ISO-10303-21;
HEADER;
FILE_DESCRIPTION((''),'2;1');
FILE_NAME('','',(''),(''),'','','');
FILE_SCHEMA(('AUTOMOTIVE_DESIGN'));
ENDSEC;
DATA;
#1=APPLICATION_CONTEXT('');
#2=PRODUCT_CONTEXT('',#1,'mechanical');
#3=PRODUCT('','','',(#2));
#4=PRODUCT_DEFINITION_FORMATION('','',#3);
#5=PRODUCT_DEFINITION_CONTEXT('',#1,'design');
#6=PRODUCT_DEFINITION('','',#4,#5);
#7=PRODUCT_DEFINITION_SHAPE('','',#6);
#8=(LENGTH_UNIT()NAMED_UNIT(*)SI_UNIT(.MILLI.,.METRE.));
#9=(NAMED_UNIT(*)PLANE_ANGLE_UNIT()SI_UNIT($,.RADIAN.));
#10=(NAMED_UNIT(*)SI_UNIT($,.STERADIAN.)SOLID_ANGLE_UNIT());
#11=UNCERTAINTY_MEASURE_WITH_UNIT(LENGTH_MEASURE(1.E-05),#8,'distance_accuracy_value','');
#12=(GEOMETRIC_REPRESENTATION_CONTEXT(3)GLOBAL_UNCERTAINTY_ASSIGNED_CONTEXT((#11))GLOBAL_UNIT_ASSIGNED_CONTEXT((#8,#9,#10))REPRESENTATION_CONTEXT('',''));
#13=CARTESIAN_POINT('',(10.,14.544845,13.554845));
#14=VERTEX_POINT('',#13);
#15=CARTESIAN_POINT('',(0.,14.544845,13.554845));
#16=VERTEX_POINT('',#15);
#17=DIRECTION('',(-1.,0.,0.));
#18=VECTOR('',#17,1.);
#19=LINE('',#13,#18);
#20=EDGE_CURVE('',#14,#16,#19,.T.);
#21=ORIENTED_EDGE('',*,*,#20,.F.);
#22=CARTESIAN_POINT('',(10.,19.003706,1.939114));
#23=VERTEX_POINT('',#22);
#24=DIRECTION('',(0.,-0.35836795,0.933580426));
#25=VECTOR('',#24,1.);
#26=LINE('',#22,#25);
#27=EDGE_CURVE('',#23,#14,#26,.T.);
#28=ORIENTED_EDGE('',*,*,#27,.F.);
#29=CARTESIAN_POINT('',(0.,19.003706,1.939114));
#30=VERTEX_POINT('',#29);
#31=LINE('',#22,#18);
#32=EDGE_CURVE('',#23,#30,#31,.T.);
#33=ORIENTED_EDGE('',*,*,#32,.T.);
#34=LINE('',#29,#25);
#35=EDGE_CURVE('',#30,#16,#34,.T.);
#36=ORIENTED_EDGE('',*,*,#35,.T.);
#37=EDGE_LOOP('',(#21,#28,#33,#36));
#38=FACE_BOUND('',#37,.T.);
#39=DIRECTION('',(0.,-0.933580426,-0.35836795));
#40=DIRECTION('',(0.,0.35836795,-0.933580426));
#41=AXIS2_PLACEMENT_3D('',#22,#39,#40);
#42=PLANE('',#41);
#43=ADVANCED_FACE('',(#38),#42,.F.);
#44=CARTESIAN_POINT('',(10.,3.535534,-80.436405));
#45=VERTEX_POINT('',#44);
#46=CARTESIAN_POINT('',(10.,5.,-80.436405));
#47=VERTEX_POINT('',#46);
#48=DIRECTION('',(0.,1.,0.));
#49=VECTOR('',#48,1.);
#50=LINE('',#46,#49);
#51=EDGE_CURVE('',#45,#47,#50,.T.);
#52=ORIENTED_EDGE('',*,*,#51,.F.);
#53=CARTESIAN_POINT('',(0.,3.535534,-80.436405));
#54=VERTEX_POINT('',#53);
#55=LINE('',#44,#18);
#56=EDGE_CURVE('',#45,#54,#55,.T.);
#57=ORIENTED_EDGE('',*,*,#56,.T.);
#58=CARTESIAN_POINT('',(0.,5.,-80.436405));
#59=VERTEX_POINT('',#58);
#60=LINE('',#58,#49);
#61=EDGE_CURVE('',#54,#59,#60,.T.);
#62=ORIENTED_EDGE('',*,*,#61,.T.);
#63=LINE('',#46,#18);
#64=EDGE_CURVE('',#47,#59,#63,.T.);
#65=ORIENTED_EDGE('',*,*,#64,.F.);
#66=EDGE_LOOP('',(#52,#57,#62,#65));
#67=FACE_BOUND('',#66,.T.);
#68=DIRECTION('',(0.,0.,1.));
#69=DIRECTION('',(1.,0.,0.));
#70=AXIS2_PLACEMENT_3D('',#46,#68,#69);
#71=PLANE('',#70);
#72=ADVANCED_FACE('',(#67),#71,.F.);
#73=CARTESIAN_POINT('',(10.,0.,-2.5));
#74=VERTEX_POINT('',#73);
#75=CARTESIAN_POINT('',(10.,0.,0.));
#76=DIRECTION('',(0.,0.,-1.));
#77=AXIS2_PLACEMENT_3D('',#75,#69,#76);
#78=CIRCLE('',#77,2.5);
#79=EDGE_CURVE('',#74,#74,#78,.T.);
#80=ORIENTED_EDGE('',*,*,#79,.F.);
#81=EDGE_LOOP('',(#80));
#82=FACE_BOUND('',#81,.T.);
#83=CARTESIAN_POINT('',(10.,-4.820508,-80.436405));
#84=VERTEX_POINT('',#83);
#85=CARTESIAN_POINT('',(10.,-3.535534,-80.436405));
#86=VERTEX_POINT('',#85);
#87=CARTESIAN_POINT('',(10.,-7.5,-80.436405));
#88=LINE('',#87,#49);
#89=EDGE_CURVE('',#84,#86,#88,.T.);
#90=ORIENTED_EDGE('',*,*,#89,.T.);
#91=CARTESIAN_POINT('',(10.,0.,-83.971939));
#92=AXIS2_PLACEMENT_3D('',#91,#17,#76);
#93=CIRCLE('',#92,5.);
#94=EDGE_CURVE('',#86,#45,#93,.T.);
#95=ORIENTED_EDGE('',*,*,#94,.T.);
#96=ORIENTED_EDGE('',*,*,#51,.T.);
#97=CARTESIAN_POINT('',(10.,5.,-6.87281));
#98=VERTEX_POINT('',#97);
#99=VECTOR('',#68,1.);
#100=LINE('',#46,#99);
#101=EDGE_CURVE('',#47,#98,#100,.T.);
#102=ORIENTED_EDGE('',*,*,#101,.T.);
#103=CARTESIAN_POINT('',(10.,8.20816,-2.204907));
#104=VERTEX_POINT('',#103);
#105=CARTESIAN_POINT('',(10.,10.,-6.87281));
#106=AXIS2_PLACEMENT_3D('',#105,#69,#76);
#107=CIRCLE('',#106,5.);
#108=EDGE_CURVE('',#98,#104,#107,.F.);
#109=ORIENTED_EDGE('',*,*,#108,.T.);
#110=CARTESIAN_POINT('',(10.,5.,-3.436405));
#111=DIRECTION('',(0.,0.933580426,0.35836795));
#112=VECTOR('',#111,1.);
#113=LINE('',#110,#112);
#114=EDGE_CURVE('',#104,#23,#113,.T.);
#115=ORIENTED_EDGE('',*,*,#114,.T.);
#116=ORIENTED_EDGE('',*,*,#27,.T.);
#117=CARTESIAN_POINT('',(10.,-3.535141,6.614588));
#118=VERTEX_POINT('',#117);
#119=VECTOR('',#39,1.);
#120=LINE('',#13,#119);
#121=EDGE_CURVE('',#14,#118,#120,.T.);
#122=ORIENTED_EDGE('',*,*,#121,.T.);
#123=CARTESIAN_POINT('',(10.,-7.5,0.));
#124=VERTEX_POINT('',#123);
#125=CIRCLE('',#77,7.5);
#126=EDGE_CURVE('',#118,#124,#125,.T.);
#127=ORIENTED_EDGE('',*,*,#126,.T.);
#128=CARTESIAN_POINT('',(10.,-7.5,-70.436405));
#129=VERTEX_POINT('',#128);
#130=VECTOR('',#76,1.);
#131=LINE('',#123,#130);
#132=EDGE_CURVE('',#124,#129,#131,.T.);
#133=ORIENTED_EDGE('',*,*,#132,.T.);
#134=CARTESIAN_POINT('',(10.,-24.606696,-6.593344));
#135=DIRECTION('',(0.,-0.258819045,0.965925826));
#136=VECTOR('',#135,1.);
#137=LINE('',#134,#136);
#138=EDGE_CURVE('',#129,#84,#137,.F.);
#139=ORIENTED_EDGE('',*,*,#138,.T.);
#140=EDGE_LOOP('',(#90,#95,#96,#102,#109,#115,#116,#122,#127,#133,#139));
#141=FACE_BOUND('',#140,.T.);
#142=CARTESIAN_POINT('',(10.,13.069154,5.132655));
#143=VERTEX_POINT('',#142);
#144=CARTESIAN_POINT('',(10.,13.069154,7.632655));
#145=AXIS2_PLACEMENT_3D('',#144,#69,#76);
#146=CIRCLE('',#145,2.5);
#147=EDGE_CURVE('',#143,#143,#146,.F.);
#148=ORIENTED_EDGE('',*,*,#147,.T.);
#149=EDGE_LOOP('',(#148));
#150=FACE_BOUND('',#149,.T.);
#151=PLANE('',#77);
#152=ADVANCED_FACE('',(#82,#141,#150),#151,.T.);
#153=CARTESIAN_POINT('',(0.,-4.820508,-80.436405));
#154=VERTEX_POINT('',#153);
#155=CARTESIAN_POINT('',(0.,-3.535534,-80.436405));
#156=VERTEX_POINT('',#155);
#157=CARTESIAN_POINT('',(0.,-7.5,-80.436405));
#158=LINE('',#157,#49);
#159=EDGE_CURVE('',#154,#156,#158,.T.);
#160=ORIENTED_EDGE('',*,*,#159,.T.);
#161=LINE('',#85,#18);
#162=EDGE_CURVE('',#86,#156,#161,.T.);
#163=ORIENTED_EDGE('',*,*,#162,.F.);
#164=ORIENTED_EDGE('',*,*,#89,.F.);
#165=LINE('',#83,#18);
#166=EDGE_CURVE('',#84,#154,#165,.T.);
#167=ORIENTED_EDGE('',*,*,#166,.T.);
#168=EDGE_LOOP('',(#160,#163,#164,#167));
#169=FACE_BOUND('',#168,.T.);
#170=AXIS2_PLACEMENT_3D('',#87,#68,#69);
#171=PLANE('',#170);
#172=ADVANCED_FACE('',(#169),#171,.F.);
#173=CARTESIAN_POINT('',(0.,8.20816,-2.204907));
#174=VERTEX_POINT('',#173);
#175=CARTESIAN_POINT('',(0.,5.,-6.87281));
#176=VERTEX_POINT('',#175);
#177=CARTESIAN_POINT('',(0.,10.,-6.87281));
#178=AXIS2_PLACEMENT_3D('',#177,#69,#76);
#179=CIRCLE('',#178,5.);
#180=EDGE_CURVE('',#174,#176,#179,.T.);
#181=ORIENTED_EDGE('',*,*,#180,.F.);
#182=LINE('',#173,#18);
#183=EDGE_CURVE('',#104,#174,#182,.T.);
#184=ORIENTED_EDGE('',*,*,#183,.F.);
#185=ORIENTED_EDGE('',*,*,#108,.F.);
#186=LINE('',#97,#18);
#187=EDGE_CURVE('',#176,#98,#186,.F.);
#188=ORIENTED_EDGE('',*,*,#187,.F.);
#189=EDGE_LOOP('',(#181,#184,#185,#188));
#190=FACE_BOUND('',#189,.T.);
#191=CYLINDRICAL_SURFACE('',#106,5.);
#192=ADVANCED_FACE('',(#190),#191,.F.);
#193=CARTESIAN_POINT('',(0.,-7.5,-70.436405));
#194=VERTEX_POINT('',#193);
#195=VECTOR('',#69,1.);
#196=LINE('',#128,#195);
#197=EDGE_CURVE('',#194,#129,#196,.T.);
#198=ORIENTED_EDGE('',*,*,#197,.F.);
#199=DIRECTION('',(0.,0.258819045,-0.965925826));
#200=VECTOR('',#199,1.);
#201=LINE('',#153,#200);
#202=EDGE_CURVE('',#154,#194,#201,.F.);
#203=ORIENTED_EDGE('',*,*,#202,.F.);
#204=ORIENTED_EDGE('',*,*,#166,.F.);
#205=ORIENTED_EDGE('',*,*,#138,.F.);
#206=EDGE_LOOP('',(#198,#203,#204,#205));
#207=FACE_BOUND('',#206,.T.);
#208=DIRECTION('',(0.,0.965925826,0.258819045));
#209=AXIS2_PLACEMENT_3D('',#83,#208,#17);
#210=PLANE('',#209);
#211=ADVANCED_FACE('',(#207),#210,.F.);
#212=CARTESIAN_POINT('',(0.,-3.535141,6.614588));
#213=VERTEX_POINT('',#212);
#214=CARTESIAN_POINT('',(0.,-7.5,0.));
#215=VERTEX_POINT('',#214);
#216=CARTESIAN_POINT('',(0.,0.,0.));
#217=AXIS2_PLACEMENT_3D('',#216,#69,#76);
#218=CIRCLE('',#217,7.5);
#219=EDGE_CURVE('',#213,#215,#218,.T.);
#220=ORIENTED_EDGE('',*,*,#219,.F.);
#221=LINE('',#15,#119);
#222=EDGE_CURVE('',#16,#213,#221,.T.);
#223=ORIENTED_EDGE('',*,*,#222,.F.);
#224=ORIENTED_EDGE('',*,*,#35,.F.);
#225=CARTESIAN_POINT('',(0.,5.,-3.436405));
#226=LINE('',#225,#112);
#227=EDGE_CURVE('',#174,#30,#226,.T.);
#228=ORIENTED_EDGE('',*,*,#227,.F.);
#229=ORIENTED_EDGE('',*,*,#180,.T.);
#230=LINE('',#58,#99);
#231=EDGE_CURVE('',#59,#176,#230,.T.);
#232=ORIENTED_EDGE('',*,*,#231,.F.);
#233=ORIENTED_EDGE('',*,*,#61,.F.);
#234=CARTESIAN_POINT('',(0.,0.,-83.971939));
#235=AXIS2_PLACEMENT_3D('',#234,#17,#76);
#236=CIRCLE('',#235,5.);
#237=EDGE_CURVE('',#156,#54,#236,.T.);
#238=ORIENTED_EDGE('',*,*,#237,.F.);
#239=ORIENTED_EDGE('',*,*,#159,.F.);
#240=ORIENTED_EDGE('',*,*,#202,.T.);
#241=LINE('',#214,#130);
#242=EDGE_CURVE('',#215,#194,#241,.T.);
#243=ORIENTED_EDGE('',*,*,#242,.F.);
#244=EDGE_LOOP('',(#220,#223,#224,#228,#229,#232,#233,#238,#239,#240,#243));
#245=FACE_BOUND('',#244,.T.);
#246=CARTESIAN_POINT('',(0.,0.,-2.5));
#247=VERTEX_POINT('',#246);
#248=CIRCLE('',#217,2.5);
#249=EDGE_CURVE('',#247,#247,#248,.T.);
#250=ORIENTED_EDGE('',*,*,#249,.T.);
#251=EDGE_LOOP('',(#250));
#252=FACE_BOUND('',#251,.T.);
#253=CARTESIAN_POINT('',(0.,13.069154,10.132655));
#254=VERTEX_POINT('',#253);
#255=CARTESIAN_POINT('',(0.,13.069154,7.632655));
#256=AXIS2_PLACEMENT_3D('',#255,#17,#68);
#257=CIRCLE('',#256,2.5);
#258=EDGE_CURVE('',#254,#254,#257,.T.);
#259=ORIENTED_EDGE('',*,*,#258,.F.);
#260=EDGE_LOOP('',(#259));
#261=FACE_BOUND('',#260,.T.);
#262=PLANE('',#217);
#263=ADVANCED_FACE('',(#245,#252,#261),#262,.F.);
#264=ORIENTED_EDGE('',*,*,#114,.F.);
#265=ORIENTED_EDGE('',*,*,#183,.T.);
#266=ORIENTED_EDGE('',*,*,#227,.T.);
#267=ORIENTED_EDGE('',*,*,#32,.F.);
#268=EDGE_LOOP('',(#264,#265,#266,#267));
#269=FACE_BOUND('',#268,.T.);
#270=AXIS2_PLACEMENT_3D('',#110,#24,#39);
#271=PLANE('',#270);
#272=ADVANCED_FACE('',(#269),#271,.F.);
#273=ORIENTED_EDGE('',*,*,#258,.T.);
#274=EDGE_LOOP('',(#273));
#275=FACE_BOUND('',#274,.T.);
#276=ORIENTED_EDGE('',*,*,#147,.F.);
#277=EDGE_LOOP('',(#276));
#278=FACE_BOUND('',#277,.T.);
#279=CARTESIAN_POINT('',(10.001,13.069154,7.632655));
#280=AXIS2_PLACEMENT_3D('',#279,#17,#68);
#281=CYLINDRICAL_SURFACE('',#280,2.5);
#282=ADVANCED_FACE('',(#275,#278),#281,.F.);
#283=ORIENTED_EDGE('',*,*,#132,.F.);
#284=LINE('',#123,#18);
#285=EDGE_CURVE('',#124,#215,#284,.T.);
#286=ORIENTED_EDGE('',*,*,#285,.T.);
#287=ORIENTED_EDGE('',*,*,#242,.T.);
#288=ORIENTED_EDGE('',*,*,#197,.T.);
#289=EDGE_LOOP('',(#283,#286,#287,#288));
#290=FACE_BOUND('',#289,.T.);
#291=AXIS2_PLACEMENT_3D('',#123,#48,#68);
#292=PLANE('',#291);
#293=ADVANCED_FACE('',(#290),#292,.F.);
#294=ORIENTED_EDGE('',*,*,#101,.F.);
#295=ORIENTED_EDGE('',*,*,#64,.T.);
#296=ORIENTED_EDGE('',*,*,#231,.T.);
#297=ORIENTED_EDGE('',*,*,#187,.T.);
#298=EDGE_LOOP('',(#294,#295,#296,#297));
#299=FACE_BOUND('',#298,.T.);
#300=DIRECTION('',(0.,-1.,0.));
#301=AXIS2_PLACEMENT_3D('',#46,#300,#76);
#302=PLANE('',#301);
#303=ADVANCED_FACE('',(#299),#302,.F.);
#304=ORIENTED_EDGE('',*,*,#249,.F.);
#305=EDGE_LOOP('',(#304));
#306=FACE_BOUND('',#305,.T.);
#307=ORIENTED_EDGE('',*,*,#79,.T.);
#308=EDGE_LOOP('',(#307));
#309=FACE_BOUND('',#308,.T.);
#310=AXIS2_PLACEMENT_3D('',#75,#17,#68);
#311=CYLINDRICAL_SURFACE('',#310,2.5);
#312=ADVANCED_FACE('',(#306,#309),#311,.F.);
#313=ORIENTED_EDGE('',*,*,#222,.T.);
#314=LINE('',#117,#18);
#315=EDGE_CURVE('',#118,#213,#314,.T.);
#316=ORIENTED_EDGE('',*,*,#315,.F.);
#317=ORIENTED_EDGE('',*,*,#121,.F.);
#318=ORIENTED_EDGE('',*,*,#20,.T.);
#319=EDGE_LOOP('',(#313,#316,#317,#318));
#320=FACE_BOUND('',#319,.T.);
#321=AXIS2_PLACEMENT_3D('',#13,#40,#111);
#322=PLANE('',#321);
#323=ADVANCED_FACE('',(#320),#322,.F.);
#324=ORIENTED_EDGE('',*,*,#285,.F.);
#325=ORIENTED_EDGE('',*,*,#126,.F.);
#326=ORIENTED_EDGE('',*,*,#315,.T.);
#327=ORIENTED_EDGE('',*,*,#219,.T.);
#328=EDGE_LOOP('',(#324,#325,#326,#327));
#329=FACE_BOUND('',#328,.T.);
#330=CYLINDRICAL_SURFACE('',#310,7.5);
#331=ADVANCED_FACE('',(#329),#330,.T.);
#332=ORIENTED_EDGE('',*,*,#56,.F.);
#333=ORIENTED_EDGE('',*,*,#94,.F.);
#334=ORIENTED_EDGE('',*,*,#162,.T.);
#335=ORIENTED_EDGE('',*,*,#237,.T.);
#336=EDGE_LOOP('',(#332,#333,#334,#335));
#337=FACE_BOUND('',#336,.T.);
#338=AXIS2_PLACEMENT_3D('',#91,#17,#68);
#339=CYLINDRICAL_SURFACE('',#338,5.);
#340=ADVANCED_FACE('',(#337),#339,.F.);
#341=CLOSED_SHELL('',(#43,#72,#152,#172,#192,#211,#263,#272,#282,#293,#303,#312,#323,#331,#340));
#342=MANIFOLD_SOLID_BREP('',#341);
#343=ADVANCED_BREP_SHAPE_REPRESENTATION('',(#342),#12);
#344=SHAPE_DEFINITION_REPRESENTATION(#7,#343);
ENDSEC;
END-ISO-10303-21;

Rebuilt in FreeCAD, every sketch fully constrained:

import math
import FreeCAD as App
import Part
import Sketcher
from FreeCAD import Vector
Q = App.Units.Quantity


def edges_at(feature, points):
    """Names of the edges that pass closest to the given points."""
    edges = feature.Shape.Edges
    near = lambda p: min(range(len(edges)), key=lambda i: edges[i].distToShape(Part.Vertex(*p))[0])
    return sorted({f"Edge{near(p) + 1}" for p in points})

doc = App.newDocument("Part")
body = doc.addObject("PartDesign::Body", "Body")

# Sketch on YZ plane
sketch1 = doc.addObject("Sketcher::SketchObject", "Sketch")
body.addObject(sketch1)
sketch1.AttachmentSupport = (doc.YZ_Plane, [""])
sketch1.MapMode = "FlatFace"
sketch1.addGeometry(Part.LineSegment(Vector(-7.5, 0, 0), Vector(-7.5, -80.436405, 0)), False)
sketch1.addGeometry(Part.LineSegment(Vector(-7.5, -80.436405, 0), Vector(-3.535534, -80.436405, 0)), False)
sketch1.addGeometry(Part.ArcOfCircle(Part.Circle(Vector(0, -83.971939, 0), Vector(0, 0, 1), 5), math.radians(45), math.radians(135)), False)
sketch1.addGeometry(Part.LineSegment(Vector(3.535534, -80.436405, 0), Vector(5, -80.436405, 0)), False)
sketch1.addGeometry(Part.LineSegment(Vector(5, -80.436405, 0), Vector(5, -3.436405, 0)), False)
sketch1.addGeometry(Part.LineSegment(Vector(5, -3.436405, 0), Vector(19.003706, 1.939114, 0)), False)
sketch1.addGeometry(Part.LineSegment(Vector(19.003706, 1.939114, 0), Vector(14.544845, 13.554845, 0)), False)
sketch1.addGeometry(Part.LineSegment(Vector(14.544845, 13.554845, 0), Vector(-3.535141, 6.614588, 0)), False)
sketch1.addGeometry(Part.ArcOfCircle(Part.Circle(Vector(0, 0, 0), Vector(0, 0, 1), 7.5), math.radians(118.122106), math.radians(180)), False)
sketch1.addGeometry(Part.Circle(Vector(0, 0, 0), Vector(0, 0, 1), 2.5), False)
sketch1.addConstraint(Sketcher.Constraint("Coincident", 0, 2, 1, 1))
sketch1.addConstraint(Sketcher.Constraint("Coincident", 1, 2, 2, 2))
sketch1.addConstraint(Sketcher.Constraint("Coincident", 2, 1, 3, 1))
sketch1.addConstraint(Sketcher.Constraint("Coincident", 3, 2, 4, 1))
sketch1.addConstraint(Sketcher.Constraint("Coincident", 4, 2, 5, 1))
sketch1.addConstraint(Sketcher.Constraint("Coincident", 5, 2, 6, 1))
sketch1.addConstraint(Sketcher.Constraint("Coincident", 6, 2, 7, 1))
sketch1.addConstraint(Sketcher.Constraint("Coincident", 7, 2, 8, 1))
sketch1.addConstraint(Sketcher.Constraint("Tangent", 8, 2, 0, 1))
sketch1.addConstraint(Sketcher.Constraint("Vertical", 0))
sketch1.addConstraint(Sketcher.Constraint("Horizontal", 1))
sketch1.addConstraint(Sketcher.Constraint("Horizontal", 3))
sketch1.addConstraint(Sketcher.Constraint("Vertical", 4))
sketch1.addConstraint(Sketcher.Constraint("Coincident", 8, 3, -1, 1))
sketch1.addConstraint(Sketcher.Constraint("Coincident", 9, 3, -1, 1))
sketch1.addConstraint(Sketcher.Constraint("Symmetric", 1, 2, 2, 1, -2))
sketch1.addConstraint(Sketcher.Constraint("Perpendicular", 5, 6))
sketch1.addConstraint(Sketcher.Constraint("Perpendicular", 6, 7))
sketch1.addConstraint(Sketcher.Constraint("Diameter", 9, Q("5 mm")))
sketch1.addConstraint(Sketcher.Constraint("Radius", 2, Q("5 mm")))
sketch1.addConstraint(Sketcher.Constraint("Radius", 8, Q("7.5 mm")))
sketch1.addConstraint(Sketcher.Constraint("DistanceY", 4, 1, 4, 2, Q("77 mm")))
sketch1.addConstraint(Sketcher.Constraint("Angle", 5, Q("21 deg")))
sketch1.addConstraint(Sketcher.Constraint("Distance", 5, Q("15 mm")))
sketch1.addConstraint(Sketcher.Constraint("DistanceX", -1, 1, 3, 2, Q("5 mm")))
sketch1.addConstraint(Sketcher.Constraint("Distance", 6, Q("12.442131 mm")))
sketch1.addConstraint(Sketcher.Constraint("DistanceX", 1, 1, 1, 2, Q("3.964466 mm")))
sketch1.addConstraint(Sketcher.Constraint("DistanceY", 0, 2, 0, 1, Q("80.436405 mm")))
pad1 = doc.addObject("PartDesign::Pad", "Pad")
body.addObject(pad1)
pad1.Profile = sketch1
pad1.Length = 10
doc.recompute()

fillet = doc.addObject("PartDesign::Fillet", "Fillet")
body.addObject(fillet)
fillet.Base = (pad1, edges_at(pad1, [(5, 5, -3.436)]))
fillet.Radius = 5

# Sketch on YZ plane
sketch2 = doc.addObject("Sketcher::SketchObject", "Sketch001")
body.addObject(sketch2)
sketch2.AttachmentSupport = (doc.YZ_Plane, [""])
sketch2.MapMode = "FlatFace"
sketch2.addGeometry(Part.Circle(Vector(13.069154, 7.632655, 0), Vector(0, 0, 1), 2.5), False)
sketch2.addConstraint(Sketcher.Constraint("Diameter", 0, Q("5 mm")))
sketch2.addConstraint(Sketcher.Constraint("DistanceX", -1, 1, 0, 3, Q("13.069154 mm")))
sketch2.addConstraint(Sketcher.Constraint("DistanceY", -1, 1, 0, 3, Q("7.632655 mm")))
pocket1 = doc.addObject("PartDesign::Pocket", "Pocket")
body.addObject(pocket1)
pocket1.Profile = sketch2
pocket1.Type = "UpToFirst"
pocket1.Reversed = True
doc.recompute()

chamfer = doc.addObject("PartDesign::Chamfer", "Chamfer")
body.addObject(chamfer)
chamfer.Base = (pocket1, edges_at(pocket1, [(5, -7.5, -80.436)]))
chamfer.ChamferType = "Two distances"
chamfer.Size = 10
chamfer.Size2 = 2.679492
chamfer.FlipDirection = True

doc.recompute()
